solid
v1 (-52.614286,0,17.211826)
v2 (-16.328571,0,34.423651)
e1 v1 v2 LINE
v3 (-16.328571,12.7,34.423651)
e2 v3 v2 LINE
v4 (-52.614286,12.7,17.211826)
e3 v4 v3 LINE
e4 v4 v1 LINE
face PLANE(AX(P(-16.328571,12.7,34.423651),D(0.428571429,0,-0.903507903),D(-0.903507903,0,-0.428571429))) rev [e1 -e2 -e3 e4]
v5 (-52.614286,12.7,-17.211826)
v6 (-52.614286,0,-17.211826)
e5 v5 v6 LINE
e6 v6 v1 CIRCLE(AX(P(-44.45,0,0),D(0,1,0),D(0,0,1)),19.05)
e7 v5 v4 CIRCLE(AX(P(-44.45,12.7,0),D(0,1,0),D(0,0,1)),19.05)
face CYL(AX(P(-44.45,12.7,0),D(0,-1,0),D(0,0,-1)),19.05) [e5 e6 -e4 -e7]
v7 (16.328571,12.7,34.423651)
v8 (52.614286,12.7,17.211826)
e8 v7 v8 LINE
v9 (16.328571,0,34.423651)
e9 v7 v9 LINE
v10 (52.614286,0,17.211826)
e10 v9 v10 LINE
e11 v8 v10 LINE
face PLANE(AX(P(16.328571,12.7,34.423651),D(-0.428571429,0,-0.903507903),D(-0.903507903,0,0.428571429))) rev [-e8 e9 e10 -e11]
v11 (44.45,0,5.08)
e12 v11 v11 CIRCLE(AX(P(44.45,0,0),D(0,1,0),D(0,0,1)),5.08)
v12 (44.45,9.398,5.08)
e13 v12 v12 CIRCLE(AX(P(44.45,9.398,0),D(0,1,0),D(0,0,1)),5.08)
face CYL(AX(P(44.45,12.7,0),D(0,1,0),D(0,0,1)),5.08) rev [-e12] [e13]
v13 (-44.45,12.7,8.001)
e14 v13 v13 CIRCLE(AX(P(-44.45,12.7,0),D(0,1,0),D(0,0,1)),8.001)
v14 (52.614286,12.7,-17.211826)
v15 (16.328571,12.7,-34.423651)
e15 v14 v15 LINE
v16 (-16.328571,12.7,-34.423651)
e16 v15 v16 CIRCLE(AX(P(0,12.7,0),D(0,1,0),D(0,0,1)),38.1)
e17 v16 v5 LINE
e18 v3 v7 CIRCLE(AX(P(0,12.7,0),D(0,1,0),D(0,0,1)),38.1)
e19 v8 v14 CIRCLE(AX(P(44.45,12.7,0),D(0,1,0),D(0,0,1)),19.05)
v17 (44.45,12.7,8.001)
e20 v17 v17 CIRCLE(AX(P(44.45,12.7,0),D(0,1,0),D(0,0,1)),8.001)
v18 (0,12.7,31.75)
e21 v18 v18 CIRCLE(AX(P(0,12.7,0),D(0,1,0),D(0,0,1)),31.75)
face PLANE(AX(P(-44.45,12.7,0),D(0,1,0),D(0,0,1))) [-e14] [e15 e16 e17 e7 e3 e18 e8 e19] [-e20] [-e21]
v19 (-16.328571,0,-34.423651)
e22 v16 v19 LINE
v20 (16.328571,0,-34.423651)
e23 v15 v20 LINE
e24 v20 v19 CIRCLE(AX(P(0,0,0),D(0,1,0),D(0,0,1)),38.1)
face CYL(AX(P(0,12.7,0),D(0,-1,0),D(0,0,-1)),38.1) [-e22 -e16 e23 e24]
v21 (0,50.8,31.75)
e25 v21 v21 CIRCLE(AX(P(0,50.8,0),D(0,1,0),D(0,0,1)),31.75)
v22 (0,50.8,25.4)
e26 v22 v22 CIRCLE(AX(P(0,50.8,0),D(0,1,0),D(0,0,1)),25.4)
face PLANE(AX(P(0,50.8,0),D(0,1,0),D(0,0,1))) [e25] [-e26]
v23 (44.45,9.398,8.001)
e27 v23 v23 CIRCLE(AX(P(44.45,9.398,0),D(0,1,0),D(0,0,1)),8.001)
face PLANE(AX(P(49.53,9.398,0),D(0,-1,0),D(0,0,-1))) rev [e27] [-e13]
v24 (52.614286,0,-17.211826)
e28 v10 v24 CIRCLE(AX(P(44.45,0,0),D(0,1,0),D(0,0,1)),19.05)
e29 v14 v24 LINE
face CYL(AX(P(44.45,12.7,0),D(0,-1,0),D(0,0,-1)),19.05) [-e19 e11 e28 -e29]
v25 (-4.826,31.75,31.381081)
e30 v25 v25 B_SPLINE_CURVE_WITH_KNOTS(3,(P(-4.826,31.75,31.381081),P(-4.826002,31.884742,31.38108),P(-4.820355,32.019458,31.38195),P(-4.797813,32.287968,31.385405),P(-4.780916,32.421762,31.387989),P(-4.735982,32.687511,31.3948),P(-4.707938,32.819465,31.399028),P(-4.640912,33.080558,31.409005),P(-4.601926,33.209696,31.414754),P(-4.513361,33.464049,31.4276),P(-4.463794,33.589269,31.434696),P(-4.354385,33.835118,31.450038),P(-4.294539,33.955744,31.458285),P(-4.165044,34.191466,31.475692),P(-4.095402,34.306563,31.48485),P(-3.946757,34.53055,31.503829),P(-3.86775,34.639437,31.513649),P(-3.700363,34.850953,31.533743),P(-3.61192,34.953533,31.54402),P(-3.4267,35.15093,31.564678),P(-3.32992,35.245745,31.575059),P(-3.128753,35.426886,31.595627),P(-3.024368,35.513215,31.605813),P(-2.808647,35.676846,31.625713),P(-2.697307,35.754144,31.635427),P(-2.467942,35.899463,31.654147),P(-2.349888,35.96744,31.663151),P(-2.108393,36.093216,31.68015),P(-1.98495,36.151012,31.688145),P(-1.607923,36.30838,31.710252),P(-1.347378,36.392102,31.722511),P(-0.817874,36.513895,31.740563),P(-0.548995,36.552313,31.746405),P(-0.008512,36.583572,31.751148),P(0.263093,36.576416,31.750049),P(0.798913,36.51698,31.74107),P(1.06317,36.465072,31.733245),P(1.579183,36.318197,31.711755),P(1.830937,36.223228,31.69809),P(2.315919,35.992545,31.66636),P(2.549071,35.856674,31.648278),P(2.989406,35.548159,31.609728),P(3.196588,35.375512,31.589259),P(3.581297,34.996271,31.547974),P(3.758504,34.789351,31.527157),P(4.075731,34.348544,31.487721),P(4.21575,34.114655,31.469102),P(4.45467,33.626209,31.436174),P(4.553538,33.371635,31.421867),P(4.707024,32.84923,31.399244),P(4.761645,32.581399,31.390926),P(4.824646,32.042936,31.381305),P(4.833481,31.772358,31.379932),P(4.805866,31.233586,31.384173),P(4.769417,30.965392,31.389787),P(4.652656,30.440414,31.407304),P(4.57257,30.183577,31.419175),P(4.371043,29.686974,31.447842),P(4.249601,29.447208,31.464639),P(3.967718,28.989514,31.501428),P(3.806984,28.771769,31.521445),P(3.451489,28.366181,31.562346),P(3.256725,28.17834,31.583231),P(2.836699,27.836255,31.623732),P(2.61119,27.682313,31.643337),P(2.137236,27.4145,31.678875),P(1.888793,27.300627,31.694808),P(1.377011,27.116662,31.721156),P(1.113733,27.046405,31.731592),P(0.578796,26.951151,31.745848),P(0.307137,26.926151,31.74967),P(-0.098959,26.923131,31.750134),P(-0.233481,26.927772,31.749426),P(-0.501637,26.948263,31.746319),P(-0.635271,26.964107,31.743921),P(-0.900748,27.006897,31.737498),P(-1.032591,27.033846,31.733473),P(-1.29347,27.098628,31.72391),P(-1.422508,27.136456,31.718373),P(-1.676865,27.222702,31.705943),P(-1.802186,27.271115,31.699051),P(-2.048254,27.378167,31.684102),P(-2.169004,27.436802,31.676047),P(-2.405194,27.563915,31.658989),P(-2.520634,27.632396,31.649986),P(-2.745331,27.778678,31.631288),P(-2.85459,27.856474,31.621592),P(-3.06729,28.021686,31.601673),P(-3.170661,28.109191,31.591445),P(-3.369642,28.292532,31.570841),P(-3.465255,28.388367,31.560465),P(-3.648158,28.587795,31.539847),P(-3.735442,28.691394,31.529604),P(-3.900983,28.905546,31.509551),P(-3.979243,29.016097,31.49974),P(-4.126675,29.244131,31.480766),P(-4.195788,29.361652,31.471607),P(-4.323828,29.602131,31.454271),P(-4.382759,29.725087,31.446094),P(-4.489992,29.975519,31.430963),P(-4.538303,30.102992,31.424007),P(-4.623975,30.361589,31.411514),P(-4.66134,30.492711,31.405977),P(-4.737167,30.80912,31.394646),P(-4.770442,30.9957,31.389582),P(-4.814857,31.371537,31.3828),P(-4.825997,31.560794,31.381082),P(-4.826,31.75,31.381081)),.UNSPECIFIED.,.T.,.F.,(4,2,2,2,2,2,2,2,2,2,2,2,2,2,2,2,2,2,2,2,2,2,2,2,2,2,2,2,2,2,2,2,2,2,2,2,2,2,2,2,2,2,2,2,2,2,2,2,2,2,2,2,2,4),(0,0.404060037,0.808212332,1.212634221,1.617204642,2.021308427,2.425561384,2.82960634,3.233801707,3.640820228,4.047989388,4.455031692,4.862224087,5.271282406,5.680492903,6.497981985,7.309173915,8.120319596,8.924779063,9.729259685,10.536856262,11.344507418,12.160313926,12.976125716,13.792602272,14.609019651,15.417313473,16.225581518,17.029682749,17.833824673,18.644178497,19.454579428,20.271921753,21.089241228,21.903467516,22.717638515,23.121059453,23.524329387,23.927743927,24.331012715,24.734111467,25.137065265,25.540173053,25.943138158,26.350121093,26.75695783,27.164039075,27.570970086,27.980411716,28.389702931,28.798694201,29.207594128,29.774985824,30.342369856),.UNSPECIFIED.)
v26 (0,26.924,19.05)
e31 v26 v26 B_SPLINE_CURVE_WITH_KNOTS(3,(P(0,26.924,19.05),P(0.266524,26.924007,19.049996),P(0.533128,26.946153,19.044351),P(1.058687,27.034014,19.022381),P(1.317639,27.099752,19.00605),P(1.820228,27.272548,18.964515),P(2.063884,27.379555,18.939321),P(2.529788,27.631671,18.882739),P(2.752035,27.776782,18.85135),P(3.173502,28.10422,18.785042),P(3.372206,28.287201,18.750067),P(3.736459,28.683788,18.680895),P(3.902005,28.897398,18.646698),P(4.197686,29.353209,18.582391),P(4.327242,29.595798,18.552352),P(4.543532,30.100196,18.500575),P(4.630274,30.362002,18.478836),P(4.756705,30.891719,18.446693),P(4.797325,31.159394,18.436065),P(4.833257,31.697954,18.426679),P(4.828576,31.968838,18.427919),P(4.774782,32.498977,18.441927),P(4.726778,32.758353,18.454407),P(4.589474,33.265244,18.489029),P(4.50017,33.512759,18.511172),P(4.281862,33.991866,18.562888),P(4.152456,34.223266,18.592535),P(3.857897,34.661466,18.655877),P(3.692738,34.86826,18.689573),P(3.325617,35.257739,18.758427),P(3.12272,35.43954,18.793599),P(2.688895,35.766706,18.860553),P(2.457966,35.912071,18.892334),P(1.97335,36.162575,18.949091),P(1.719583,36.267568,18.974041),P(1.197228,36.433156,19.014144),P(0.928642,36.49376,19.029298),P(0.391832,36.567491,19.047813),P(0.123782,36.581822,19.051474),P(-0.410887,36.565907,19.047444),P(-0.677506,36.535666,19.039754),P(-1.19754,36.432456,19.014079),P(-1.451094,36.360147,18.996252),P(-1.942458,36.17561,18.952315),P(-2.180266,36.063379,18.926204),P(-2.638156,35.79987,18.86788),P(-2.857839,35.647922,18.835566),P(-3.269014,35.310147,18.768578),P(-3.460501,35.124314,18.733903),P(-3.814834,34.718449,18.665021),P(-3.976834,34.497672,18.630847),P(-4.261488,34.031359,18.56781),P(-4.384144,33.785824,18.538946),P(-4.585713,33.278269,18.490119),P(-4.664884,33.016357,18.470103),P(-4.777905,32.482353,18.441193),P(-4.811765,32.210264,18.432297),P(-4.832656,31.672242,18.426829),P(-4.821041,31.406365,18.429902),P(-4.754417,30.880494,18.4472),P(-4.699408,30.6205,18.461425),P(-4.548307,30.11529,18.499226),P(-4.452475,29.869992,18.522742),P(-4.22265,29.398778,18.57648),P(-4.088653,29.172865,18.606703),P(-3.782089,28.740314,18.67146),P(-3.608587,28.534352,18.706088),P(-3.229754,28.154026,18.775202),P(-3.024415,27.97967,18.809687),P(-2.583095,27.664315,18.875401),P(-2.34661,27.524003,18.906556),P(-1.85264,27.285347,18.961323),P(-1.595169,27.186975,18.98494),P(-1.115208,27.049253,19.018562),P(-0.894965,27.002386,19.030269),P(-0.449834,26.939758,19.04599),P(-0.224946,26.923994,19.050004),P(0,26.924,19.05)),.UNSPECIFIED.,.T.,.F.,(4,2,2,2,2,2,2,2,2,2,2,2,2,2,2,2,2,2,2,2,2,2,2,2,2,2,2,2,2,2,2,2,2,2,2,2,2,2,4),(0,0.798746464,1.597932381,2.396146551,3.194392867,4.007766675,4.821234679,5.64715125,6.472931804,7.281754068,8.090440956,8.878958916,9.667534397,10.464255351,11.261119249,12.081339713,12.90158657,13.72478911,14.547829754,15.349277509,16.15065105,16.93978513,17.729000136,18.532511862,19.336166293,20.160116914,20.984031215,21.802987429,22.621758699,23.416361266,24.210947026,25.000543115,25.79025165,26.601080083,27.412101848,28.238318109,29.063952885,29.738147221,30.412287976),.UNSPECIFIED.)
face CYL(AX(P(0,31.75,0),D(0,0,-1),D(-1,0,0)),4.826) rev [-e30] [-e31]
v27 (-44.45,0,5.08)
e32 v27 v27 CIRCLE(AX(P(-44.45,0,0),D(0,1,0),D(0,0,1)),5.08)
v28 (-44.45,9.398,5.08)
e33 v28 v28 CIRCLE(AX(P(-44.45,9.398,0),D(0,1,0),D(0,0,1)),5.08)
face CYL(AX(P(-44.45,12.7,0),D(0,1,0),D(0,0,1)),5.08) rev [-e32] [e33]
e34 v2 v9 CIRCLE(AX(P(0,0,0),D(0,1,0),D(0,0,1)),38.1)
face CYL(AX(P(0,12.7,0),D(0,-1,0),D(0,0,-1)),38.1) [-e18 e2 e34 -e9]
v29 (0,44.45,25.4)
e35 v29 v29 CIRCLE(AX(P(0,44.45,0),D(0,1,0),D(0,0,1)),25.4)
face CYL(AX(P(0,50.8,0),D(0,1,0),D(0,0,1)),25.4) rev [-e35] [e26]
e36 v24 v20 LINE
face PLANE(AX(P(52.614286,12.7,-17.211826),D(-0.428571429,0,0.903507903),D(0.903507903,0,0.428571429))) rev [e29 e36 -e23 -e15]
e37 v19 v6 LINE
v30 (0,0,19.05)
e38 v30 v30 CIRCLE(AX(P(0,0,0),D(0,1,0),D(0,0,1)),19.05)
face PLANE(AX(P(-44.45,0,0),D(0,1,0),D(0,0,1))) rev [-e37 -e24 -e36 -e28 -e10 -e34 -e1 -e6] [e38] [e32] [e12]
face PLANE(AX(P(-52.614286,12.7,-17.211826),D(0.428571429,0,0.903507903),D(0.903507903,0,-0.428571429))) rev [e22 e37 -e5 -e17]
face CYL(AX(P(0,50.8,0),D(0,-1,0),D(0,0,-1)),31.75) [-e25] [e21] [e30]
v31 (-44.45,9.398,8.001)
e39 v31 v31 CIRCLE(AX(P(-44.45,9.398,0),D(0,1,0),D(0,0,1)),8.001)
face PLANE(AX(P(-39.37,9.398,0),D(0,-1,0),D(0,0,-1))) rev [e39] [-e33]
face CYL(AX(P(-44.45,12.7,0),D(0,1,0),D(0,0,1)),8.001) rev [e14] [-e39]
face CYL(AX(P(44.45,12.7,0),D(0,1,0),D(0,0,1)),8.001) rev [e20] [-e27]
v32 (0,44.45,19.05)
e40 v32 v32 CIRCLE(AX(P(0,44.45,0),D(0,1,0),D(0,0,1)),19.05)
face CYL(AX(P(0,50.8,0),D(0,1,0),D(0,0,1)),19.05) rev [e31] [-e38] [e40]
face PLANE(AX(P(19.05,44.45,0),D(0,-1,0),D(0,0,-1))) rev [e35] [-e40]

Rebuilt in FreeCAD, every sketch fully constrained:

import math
import FreeCAD as App
import Part
import Sketcher

V = App.Vector
Q = App.Units.Quantity

doc = App.newDocument("Part")
body = doc.addObject("PartDesign::Body", "Body")

# Sketch on XZ plane
sketch1 = doc.addObject("Sketcher::SketchObject", "Sketch")
body.addObject(sketch1)
sketch1.AttachmentSupport = (doc.XZ_Plane, [""])
sketch1.MapMode = "FlatFace"
sketch1.addGeometry([
    Part.LineSegment(V(-16.328571, -34.423651, 0), V(-52.614286, -17.211826, 0)),  # 0
    Part.ArcOfCircle(Part.Circle(V(-44.45, 0, 0), V(0, 0, 1), 19.05), math.radians(115.376934), math.radians(244.623066)),  # 1
    Part.LineSegment(V(-52.614286, 17.211826, 0), V(-16.328571, 34.423651, 0)),  # 2
    Part.ArcOfCircle(Part.Circle(V(0, 0, 0), V(0, 0, 1), 38.1), math.radians(64.623066), math.radians(115.376934)),  # 3
    Part.LineSegment(V(16.328571, 34.423651, 0), V(52.614286, 17.211826, 0)),  # 4
    Part.ArcOfCircle(Part.Circle(V(44.45, 0, 0), V(0, 0, 1), 19.05), math.radians(-64.623066), math.radians(64.623066)),  # 5
    Part.LineSegment(V(52.614286, -17.211826, 0), V(16.328571, -34.423651, 0)),  # 6
    Part.ArcOfCircle(Part.Circle(V(0, 0, 0), V(0, 0, 1), 38.1), math.radians(-115.376934), math.radians(-64.623066)),  # 7
], False)
sketch1.addConstraint([
    Sketcher.Constraint("Tangent", 0, 2, 1, 2),
    Sketcher.Constraint("Tangent", 1, 1, 2, 1),
    Sketcher.Constraint("Tangent", 2, 2, 3, 2),
    Sketcher.Constraint("Tangent", 3, 1, 4, 1),
    Sketcher.Constraint("Tangent", 4, 2, 5, 2),
    Sketcher.Constraint("Tangent", 5, 1, 6, 1),
    Sketcher.Constraint("Tangent", 6, 2, 7, 2),
    Sketcher.Constraint("Tangent", 7, 1, 0, 1),
    Sketcher.Constraint("Coincident", 3, 3, -1, 1),
    Sketcher.Constraint("Coincident", 7, 3, -1, 1),
    Sketcher.Constraint("Equal", 1, 5),
    Sketcher.Constraint("Equal", 3, 7),
    Sketcher.Constraint("Symmetric", 1, 3, 5, 3, -1, 1),
    Sketcher.Constraint("PointOnObject", 1, 3, -1),
    Sketcher.Constraint("Radius", 3, Q("1.5 in")),
    Sketcher.Constraint("Radius", 1, Q("0.75 in")),
    Sketcher.Constraint("DistanceX", 1, 3, 5, 3, Q("3.5 in")),
])
pad1 = doc.addObject("PartDesign::Pad", "Pad")
body.addObject(pad1)
pad1.Profile = sketch1
pad1.Length = Q("0.5 in")
pad1.Reversed = True

# Sketch on XZ plane
sketch2 = doc.addObject("Sketcher::SketchObject", "Sketch001")
body.addObject(sketch2)
sketch2.AttachmentSupport = (doc.XZ_Plane, [""])
sketch2.MapMode = "FlatFace"
sketch2.AttachmentOffset = App.Placement(V(0, 0, -0.5 * 25.4), App.Rotation())
sketch2.addGeometry(Part.Circle(V(0, 0, 0), V(0, 0, 1), 31.75), False)
sketch2.addConstraint([
    Sketcher.Constraint("Coincident", 0, 3, -1, 1),
    Sketcher.Constraint("Diameter", 0, Q("2.5 in")),
])
pad2 = doc.addObject("PartDesign::Pad", "Pad001")
body.addObject(pad2)
pad2.Profile = sketch2
pad2.Length = Q("1.5 in")
pad2.Reversed = True

# Sketch on XZ plane
sketch3 = doc.addObject("Sketcher::SketchObject", "Sketch002")
body.addObject(sketch3)
sketch3.AttachmentSupport = (doc.XZ_Plane, [""])
sketch3.MapMode = "FlatFace"
sketch3.AttachmentOffset = App.Placement(V(0, 0, -2 * 25.4), App.Rotation())
sketch3.addGeometry(Part.Circle(V(0, 0, 0), V(0, 0, 1), 19.05), False)
sketch3.addConstraint([
    Sketcher.Constraint("Coincident", 0, 3, -1, 1),
    Sketcher.Constraint("Diameter", 0, Q("1.5 in")),
])
doc.recompute()
hole = doc.addObject("PartDesign::Hole", "Hole")
body.addObject(hole)
hole.Profile = sketch3
hole.ThreadType = "None"
hole.Diameter = Q("1.5 in")
hole.DepthType = "ThroughAll"
hole.HoleCutType = "Counterbore"
hole.HoleCutDiameter = Q("2 in")
hole.HoleCutDepth = Q("0.25 in")
hole.Reversed = True

# Sketch on XZ plane
sketch4 = doc.addObject("Sketcher::SketchObject", "Sketch003")
body.addObject(sketch4)
sketch4.AttachmentSupport = (doc.XZ_Plane, [""])
sketch4.MapMode = "FlatFace"
sketch4.AttachmentOffset = App.Placement(V(0, 0, -0.5 * 25.4), App.Rotation())
sketch4.addGeometry([
    Part.Circle(V(-44.45, 0, 0), V(0, 0, 1), 5.08),
    Part.Circle(V(44.45, 0, 0), V(0, 0, 1), 5.08),
], False)
sketch4.addConstraint([
    Sketcher.Constraint("Equal", 0, 1),
    Sketcher.Constraint("Symmetric", 0, 3, 1, 3, -1, 1),
    Sketcher.Constraint("PointOnObject", 0, 3, -1),
    Sketcher.Constraint("Diameter", 0, Q("0.4 in")),
    Sketcher.Constraint("DistanceX", 0, 3, 1, 3, Q("3.5 in")),
])
doc.recompute()
hole2 = doc.addObject("PartDesign::Hole", "Hole001")
body.addObject(hole2)
hole2.Profile = sketch4
hole2.ThreadType = "None"
hole2.Diameter = Q("0.4 in")
hole2.DepthType = "ThroughAll"
hole2.HoleCutType = "Counterbore"
hole2.HoleCutDiameter = Q("0.63 in")
hole2.HoleCutDepth = Q("0.13 in")
hole2.Reversed = True

# Sketch on YZ plane
sketch5 = doc.addObject("Sketcher::SketchObject", "Sketch004")
body.addObject(sketch5)
sketch5.AttachmentSupport = (doc.YZ_Plane, [""])
sketch5.MapMode = "FlatFace"
sketch5.addGeometry([
    Part.LineSegment(V(31.75, 38.1, 0), V(31.75, 0, 0)),
    Part.LineSegment(V(31.75, 0, 0), V(36.576, 0, 0)),
    Part.LineSegment(V(36.576, 0, 0), V(36.576, 38.1, 0)),
    Part.LineSegment(V(36.576, 38.1, 0), V(31.75, 38.1, 0)),
], False)
sketch5.addGeometry(Part.LineSegment(V(31.75, 0, 0), V(31.75, 38.1, 0)), True)  # axis
sketch5.addConstraint([
    Sketcher.Constraint("Coincident", 0, 2, 1, 1),
    Sketcher.Constraint("Coincident", 1, 2, 2, 1),
    Sketcher.Constraint("Coincident", 2, 2, 3, 1),
    Sketcher.Constraint("Coincident", 3, 2, 0, 1),
    Sketcher.Constraint("Vertical", 0),
    Sketcher.Constraint("Horizontal", 1),
    Sketcher.Constraint("Vertical", 2),
    Sketcher.Constraint("Horizontal", 3),
    Sketcher.Constraint("Vertical", 4),
    Sketcher.Constraint("Coincident", 4, 1, 0, 2),
    Sketcher.Constraint("PointOnObject", 0, 2, -1),
    Sketcher.Constraint("Horizontal", 2, 2, 4, 2),
    Sketcher.Constraint("DistanceY", 0, 2, 0, 1, Q("1.5 in")),
    Sketcher.Constraint("DistanceX", 1, 1, 1, 2, Q("0.19 in")),
    Sketcher.Constraint("DistanceX", -1, 1, 0, 2, Q("1.25 in")),
])
groove = doc.addObject("PartDesign::Groove", "Groove")
body.addObject(groove)
groove.Profile = sketch5
groove.ReferenceAxis = (sketch5, ["Axis0"])
groove.Angle = 360

doc.recompute()
